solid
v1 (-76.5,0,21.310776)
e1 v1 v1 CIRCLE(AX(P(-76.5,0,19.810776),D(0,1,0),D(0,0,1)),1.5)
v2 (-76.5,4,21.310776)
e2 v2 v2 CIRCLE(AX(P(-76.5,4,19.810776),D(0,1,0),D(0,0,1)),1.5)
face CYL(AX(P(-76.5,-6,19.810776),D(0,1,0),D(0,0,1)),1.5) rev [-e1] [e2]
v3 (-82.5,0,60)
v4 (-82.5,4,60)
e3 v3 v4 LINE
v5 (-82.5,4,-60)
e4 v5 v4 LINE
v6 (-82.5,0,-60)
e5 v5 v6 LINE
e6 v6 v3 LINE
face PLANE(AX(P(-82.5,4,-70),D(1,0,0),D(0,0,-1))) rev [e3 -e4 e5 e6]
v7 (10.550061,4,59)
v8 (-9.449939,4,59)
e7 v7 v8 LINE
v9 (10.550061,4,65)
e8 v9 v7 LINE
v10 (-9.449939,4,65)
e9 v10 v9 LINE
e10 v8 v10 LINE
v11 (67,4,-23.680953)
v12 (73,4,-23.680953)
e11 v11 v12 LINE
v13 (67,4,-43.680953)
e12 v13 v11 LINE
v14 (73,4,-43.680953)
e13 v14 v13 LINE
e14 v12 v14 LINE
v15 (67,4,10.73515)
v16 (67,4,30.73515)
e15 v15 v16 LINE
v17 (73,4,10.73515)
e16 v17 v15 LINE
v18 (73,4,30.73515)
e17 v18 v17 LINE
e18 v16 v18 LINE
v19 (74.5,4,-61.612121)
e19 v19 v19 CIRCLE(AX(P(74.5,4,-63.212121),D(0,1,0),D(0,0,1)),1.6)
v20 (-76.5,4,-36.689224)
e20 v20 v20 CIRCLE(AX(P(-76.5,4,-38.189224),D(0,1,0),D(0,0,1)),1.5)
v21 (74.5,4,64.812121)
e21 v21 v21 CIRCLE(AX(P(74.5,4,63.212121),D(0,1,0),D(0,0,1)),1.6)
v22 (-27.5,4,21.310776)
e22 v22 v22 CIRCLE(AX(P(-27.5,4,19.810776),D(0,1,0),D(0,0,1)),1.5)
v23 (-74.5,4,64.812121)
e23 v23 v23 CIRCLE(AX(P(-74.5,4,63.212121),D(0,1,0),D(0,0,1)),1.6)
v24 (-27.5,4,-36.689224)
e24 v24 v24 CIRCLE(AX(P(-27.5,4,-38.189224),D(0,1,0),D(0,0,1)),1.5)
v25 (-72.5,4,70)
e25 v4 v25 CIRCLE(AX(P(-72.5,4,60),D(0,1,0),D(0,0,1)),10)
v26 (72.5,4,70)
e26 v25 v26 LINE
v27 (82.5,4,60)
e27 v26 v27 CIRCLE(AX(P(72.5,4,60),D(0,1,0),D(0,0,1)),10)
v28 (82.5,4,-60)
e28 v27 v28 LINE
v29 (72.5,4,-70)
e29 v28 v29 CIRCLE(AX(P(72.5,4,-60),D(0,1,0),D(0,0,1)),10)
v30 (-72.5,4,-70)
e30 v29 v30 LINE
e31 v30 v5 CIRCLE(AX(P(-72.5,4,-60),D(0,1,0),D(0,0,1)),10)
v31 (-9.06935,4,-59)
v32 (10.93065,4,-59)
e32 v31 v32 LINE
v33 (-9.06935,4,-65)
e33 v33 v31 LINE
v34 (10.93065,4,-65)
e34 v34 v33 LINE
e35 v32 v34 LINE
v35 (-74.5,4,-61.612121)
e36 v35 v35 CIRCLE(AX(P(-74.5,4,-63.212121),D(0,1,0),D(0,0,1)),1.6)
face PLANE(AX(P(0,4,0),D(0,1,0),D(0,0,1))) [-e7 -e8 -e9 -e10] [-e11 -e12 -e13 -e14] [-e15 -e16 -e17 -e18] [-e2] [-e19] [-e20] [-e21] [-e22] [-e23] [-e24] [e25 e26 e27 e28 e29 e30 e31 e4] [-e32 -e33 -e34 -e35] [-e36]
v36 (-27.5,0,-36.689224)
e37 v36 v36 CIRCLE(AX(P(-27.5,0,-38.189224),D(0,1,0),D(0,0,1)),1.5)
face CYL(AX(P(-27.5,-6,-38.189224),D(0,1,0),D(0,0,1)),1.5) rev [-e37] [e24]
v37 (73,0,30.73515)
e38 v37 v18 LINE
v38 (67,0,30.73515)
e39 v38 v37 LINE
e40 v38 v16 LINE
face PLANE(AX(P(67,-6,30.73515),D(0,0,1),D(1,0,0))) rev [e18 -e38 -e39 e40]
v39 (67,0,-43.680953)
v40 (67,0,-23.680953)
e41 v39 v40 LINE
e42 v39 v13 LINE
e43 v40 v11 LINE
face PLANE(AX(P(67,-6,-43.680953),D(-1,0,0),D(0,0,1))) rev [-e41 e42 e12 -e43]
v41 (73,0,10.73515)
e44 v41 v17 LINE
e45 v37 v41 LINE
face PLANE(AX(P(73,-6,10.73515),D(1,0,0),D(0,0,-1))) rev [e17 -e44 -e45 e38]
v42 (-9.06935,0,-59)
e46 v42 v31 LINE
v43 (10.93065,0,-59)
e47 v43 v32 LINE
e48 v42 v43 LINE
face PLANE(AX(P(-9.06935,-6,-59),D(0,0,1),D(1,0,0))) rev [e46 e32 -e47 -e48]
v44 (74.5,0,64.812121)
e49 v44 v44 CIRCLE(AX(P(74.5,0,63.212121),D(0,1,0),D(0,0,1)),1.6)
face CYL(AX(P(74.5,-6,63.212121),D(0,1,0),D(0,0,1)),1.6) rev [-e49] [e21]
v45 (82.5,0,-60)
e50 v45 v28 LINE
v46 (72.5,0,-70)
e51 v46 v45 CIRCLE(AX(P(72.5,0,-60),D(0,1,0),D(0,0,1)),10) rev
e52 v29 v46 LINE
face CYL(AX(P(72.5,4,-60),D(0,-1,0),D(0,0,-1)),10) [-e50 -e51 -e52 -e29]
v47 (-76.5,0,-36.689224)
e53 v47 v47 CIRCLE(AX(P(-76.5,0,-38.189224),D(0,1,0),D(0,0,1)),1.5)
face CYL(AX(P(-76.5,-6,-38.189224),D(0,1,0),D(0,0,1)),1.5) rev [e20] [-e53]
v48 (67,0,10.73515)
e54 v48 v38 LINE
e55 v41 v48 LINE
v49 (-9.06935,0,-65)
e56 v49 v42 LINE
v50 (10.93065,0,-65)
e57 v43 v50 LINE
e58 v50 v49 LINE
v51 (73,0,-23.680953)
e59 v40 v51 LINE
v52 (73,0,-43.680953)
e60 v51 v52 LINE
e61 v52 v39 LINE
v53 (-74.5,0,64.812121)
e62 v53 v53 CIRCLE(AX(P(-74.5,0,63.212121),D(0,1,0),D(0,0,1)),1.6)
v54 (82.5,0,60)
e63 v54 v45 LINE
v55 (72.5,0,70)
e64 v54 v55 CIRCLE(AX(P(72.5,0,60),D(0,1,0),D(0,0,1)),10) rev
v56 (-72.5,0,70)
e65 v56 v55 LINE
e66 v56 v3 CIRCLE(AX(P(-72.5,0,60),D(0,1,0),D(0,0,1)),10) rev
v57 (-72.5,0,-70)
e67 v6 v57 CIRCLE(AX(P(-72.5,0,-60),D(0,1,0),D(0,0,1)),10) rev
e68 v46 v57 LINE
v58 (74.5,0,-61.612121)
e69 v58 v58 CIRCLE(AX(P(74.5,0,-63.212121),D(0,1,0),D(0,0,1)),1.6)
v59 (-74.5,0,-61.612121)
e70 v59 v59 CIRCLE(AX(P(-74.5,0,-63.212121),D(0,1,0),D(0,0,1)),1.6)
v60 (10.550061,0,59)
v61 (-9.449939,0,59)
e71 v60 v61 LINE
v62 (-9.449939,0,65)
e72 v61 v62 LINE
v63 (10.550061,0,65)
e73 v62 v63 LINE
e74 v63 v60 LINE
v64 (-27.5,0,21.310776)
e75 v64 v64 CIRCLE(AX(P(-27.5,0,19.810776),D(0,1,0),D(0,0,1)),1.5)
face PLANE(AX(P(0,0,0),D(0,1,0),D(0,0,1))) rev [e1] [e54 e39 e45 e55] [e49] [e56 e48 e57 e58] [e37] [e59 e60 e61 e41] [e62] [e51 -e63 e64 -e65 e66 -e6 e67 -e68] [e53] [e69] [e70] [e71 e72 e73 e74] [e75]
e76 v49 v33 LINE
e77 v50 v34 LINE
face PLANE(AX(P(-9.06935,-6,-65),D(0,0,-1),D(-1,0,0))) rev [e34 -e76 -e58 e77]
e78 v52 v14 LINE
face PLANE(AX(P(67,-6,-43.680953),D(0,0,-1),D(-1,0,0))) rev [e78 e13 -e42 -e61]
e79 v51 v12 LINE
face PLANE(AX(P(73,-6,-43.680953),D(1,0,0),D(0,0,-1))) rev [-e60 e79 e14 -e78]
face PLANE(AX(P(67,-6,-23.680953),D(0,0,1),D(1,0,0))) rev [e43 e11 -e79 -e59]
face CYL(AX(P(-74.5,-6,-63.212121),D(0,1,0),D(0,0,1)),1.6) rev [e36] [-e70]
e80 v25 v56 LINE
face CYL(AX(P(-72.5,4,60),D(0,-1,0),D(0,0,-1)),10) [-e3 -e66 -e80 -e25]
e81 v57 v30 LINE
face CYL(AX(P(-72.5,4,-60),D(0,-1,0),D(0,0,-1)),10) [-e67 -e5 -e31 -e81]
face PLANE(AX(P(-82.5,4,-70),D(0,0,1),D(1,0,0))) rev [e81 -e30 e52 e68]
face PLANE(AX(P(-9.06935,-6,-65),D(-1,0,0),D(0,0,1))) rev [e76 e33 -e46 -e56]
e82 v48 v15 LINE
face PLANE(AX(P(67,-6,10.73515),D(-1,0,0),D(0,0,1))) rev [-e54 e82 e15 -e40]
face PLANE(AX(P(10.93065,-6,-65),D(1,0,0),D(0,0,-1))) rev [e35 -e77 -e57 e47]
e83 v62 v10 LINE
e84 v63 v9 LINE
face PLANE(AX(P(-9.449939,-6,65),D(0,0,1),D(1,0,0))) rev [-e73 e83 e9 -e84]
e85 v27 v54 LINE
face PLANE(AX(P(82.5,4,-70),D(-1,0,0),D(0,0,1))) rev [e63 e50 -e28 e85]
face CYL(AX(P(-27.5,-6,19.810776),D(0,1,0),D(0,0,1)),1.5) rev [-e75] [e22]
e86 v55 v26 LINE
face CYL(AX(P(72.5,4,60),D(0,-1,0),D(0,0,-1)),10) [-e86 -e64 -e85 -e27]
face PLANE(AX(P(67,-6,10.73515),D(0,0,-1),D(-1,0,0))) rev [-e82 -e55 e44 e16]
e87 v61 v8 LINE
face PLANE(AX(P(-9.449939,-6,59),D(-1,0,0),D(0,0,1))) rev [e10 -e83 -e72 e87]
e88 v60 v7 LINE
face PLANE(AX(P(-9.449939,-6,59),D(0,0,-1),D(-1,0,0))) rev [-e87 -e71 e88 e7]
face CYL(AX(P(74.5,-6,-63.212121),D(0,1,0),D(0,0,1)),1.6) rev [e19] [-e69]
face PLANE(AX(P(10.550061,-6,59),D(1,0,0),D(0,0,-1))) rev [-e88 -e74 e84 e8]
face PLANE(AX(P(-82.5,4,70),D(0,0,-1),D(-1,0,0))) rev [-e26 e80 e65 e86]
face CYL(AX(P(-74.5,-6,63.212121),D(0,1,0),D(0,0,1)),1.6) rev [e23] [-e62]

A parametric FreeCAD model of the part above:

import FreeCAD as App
import Part
import Sketcher
Q = App.Units.Quantity


def edges_at(feature, points):
    """Names of the edges that pass closest to the given points."""
    edges = feature.Shape.Edges
    near = lambda p: min(range(len(edges)), key=lambda i: edges[i].distToShape(Part.Vertex(*p))[0])
    return sorted({f"Edge{near(p) + 1}" for p in points})


def add_polygon(sketch, points):
    """Adds a closed chain of lines whose ends are joined by coincident constraints."""
    first, n = sketch.GeometryCount, len(points)
    for a, b in zip(points, points[1:] + points[:1]):
        sketch.addGeometry(Part.LineSegment(App.Vector(*a, 0), App.Vector(*b, 0)), False)
    for i in range(n):
        sketch.addConstraint(Sketcher.Constraint("Coincident", first + i, 2, first + (i + 1) % n, 1))

doc = App.newDocument("Part")
body = doc.addObject("PartDesign::Body", "Body")

# Sketch on XZ plane
sketch1 = body.newObject("Sketcher::SketchObject", "Sketch")
sketch1.AttachmentSupport = (doc.getObject("XZ_Plane"), [""])
sketch1.MapMode = "FlatFace"
add_polygon(sketch1, [(-82, -70), (-82, 70), (82, 70), (82, -70)])  # lines 0-3
sketch1.addConstraint([
    Sketcher.Constraint("Vertical", 0),
    Sketcher.Constraint("Horizontal", 1),
    Sketcher.Constraint("Vertical", 2),
    Sketcher.Constraint("Horizontal", 3),
    Sketcher.Constraint("Symmetric", 0, 2, 2, 2, -1, 1),
    Sketcher.Constraint("DistanceX", 1, 1, 1, 2, Q("165 mm")),
    Sketcher.Constraint("DistanceY", 0, 1, 0, 2, Q("140 mm")),
])
pad1 = body.newObject("PartDesign::Pad", "Pad")
pad1.Profile = sketch1
pad1.Length = 4
pad1.Reversed = True

# Sketch on XZ plane
sketch2 = body.newObject("Sketcher::SketchObject", "Sketch001")
sketch2.AttachmentSupport = (doc.getObject("XZ_Plane"), [""])
sketch2.MapMode = "FlatFace"
sketch2.AttachmentOffset = App.Placement(App.Vector(0, 0, -4), App.Rotation())
sketch2.addGeometry([
    Part.Circle(App.Vector(-74.5, -63.2, 0), App.Vector(0, 0, 1), 1.6),
    Part.Circle(App.Vector(-74.5, 63.2, 0), App.Vector(0, 0, 1), 1.6),
    Part.Circle(App.Vector(74.5, 63.2, 0), App.Vector(0, 0, 1), 1.6),
    Part.Circle(App.Vector(74.5, -63.2, 0), App.Vector(0, 0, 1), 1.6),
], False)
sketch2.addConstraint([
    Sketcher.Constraint("Equal", 0, 1),
    Sketcher.Constraint("Equal", 1, 2),
    Sketcher.Constraint("Equal", 2, 3),
    Sketcher.Constraint("Symmetric", 0, 3, 2, 3, -1, 1),
    Sketcher.Constraint("Symmetric", 1, 3, 3, 3, -1, 1),
    Sketcher.Constraint("Symmetric", 1, 3, 2, 3, -2),
    Sketcher.Constraint("Diameter", 0, Q("3.2 mm")),
    Sketcher.Constraint("DistanceX", 1, 3, 2, 3, Q("149 mm")),
    Sketcher.Constraint("DistanceY", 0, 3, -1, 1, Q("63.212121 mm")),
])
pocket1 = body.newObject("PartDesign::Pocket", "Pocket")
pocket1.Profile = sketch2
pocket1.Length = 10
pocket1.Reversed = True
doc.recompute()

fillet = body.newObject("PartDesign::Fillet", "Fillet")
fillet.Base = (pocket1, edges_at(pocket1, [
    (82.5, 2, 70),
    (-82.5, 2, 70),
    (-82.5, 2, -70),
    (82.5, 2, -70),
]))
fillet.Radius = 10

# Sketch on XZ plane
sketch3 = body.newObject("Sketcher::SketchObject", "Sketch002")
sketch3.AttachmentSupport = (doc.getObject("XZ_Plane"), [""])
sketch3.MapMode = "FlatFace"
sketch3.AttachmentOffset = App.Placement(App.Vector(0, 0, -4), App.Rotation())
sketch3.addGeometry([
    Part.Circle(App.Vector(-76.5, -38.2, 0), App.Vector(0, 0, 1), 1.5),
    Part.Circle(App.Vector(-27.5, -38.2, 0), App.Vector(0, 0, 1), 1.5),
    Part.Circle(App.Vector(-76.5, 19.8, 0), App.Vector(0, 0, 1), 1.5),
    Part.Circle(App.Vector(-27.5, 19.8, 0), App.Vector(0, 0, 1), 1.5),
], False)
sketch3.addConstraint([
    Sketcher.Constraint("Equal", 0, 1),
    Sketcher.Constraint("Equal", 1, 2),
    Sketcher.Constraint("Equal", 2, 3),
    Sketcher.Constraint("Horizontal", 0, 3, 1, 3),
    Sketcher.Constraint("Horizontal", 2, 3, 3, 3),
    Sketcher.Constraint("Vertical", 0, 3, 2, 3),
    Sketcher.Constraint("Vertical", 1, 3, 3, 3),
    Sketcher.Constraint("Diameter", 0, Q("3 mm")),
    Sketcher.Constraint("DistanceX", 0, 3, 1, 3, Q("49 mm")),
    Sketcher.Constraint("DistanceY", 0, 3, 2, 3, Q("58 mm")),
    Sketcher.Constraint("DistanceX", 0, 3, -1, 1, Q("76.5 mm")),
    Sketcher.Constraint("DistanceY", 0, 3, -1, 1, Q("38.189224 mm")),
])
pocket2 = body.newObject("PartDesign::Pocket", "Pocket001")
pocket2.Profile = sketch3
pocket2.Length = 10
pocket2.Reversed = True

# Sketch on XZ plane
sketch4 = body.newObject("Sketcher::SketchObject", "Sketch003")
sketch4.AttachmentSupport = (doc.getObject("XZ_Plane"), [""])
sketch4.MapMode = "FlatFace"
sketch4.AttachmentOffset = App.Placement(App.Vector(0, 0, -4), App.Rotation())
add_polygon(sketch4, [(67, -44), (67, -24), (73, -24), (73, -44)])  # lines 0-3
add_polygon(sketch4, [(67, 11), (67, 31), (73, 31), (73, 11)])  # lines 4-7
add_polygon(sketch4, [(-9, 59), (-9, 65), (11, 65), (11, 59)])  # lines 8-11
add_polygon(sketch4, [(-9, -65), (-9, -59), (11, -59), (11, -65)])  # lines 12-15
sketch4.addConstraint([
    Sketcher.Constraint("Vertical", 0),
    Sketcher.Constraint("Horizontal", 1),
    Sketcher.Constraint("Vertical", 2),
    Sketcher.Constraint("Horizontal", 3),
    Sketcher.Constraint("Vertical", 4),
    Sketcher.Constraint("Horizontal", 5),
    Sketcher.Constraint("Vertical", 6),
    Sketcher.Constraint("Horizontal", 7),
    Sketcher.Constraint("Vertical", 8),
    Sketcher.Constraint("Horizontal", 9),
    Sketcher.Constraint("Vertical", 10),
    Sketcher.Constraint("Horizontal", 11),
    Sketcher.Constraint("Vertical", 12),
    Sketcher.Constraint("Horizontal", 13),
    Sketcher.Constraint("Vertical", 14),
    Sketcher.Constraint("Horizontal", 15),
    Sketcher.Constraint("Vertical", 3, 2, 4, 2),
    Sketcher.Constraint("Vertical", 2, 2, 5, 2),
    Sketcher.Constraint("Equal", 11, 13),
    Sketcher.Constraint("Equal", 15, 0),
    Sketcher.Constraint("Equal", 2, 4),
    Sketcher.Constraint("Equal", 7, 8),
    Sketcher.Constraint("Equal", 10, 12),
    Sketcher.Constraint("DistanceX", 1, 1, 1, 2, Q("6 mm")),
    Sketcher.Constraint("DistanceX", 9, 1, 9, 2, Q("20 mm")),
    Sketcher.Constraint("DistanceX", -1, 1, 0, 2, Q("67 mm")),
    Sketcher.Constraint("DistanceY", -1, 1, 8, 2, Q("65 mm")),
    Sketcher.Constraint("DistanceY", 12, 2, -1, 1, Q("59 mm")),
    Sketcher.Constraint("DistanceY", -1, 1, 4, 2, Q("30.73515 mm")),
    Sketcher.Constraint("DistanceX", 8, 2, -1, 1, Q("9.449939 mm")),
    Sketcher.Constraint("DistanceX", 12, 2, -1, 1, Q("9.06935 mm")),
    Sketcher.Constraint("DistanceY", 0, 2, -1, 1, Q("23.680953 mm")),
])
pocket3 = body.newObject("PartDesign::Pocket", "Pocket002")
pocket3.Profile = sketch4
pocket3.Length = 10
pocket3.Reversed = True

doc.recompute()
